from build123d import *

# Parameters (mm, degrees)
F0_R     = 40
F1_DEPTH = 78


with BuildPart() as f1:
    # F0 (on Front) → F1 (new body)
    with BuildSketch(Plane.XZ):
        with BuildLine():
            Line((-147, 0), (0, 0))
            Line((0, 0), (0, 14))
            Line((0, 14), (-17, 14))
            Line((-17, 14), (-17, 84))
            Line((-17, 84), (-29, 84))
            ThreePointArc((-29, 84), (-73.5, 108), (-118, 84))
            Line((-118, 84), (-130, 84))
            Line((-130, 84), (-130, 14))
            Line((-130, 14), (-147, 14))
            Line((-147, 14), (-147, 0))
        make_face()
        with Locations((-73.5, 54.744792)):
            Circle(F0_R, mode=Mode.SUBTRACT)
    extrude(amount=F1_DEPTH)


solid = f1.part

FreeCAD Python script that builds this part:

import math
import FreeCAD as App
import Part
import Sketcher

V = App.Vector

doc = App.newDocument("Part")
body = doc.addObject("PartDesign::Body", "Body")

sketch1 = doc.addObject("Sketcher::SketchObject", "Sketch")
body.addObject(sketch1)
sketch1.AttachmentSupport = (doc.XZ_Plane, [""])
sketch1.MapMode = "FlatFace"
sketch1.addGeometry([
    Part.LineSegment(V(-147, 0, 0), V(0, 0, 0)),
    Part.LineSegment(V(0, 0, 0), V(0, 14, 0)),
    Part.LineSegment(V(0, 14, 0), V(-17, 14, 0)),
    Part.LineSegment(V(-17, 14, 0), V(-17, 84, 0)),
    Part.LineSegment(V(-17, 84, 0), V(-29, 84, 0)),
    Part.ArcOfCircle(Part.Circle(V(-73.5, 54.744792, 0), V(0, 0, 1), 53.255208), math.radians(33.321736), math.radians(146.678264)),
    Part.LineSegment(V(-118, 84, 0), V(-130, 84, 0)),
    Part.LineSegment(V(-130, 84, 0), V(-130, 14, 0)),
    Part.LineSegment(V(-130, 14, 0), V(-147, 14, 0)),
    Part.LineSegment(V(-147, 14, 0), V(-147, 0, 0)),
    Part.Circle(V(-73.5, 54.744792, 0), V(0, 0, 1), 40),
], False)
sketch1.addConstraint([
    Sketcher.Constraint("Coincident", 0, 2, 1, 1),
    Sketcher.Constraint("Coincident", 1, 2, 2, 1),
    Sketcher.Constraint("Coincident", 2, 2, 3, 1),
    Sketcher.Constraint("Coincident", 3, 2, 4, 1),
    Sketcher.Constraint("Coincident", 4, 2, 5, 1),
    Sketcher.Constraint("Coincident", 5, 2, 6, 1),
    Sketcher.Constraint("Coincident", 6, 2, 7, 1),
    Sketcher.Constraint("Coincident", 7, 2, 8, 1),
    Sketcher.Constraint("Coincident", 8, 2, 9, 1),
    Sketcher.Constraint("Coincident", 9, 2, 0, 1),
    Sketcher.Constraint("Horizontal", 0),
    Sketcher.Constraint("Vertical", 1),
    Sketcher.Constraint("Horizontal", 2),
    Sketcher.Constraint("Vertical", 3),
    Sketcher.Constraint("Horizontal", 4),
    Sketcher.Constraint("Horizontal", 6),
    Sketcher.Constraint("Vertical", 7),
    Sketcher.Constraint("Horizontal", 8),
    Sketcher.Constraint("Vertical", 9),
    Sketcher.Constraint("Coincident", 0, 2, -1, 1),
    Sketcher.Constraint("Coincident", 10, 3, 5, 3),
    Sketcher.Constraint("Horizontal", 4, 2, 5, 2),
    Sketcher.Constraint("Horizontal", 2, 2, 7, 2),
    Sketcher.Constraint("Equal", 4, 6),
    Sketcher.Constraint("Equal", 2, 8),
    Sketcher.Constraint("Diameter", 10, 80.0),
    Sketcher.Constraint("DistanceX", 0, 1, 0, 2, 147.0),
    Sketcher.Constraint("DistanceX", 2, 2, 2, 1, 17.0),
    Sketcher.Constraint("DistanceX", 4, 2, 4, 1, 12.0),
    Sketcher.Constraint("DistanceY", 1, 1, 1, 2, 14.0),
    Sketcher.Constraint("DistanceY", 3, 1, 3, 2, 70.0),
    Sketcher.Constraint("Radius", 5, 53.255208),
])
pad1 = doc.addObject("PartDesign::Pad", "Pad")
body.addObject(pad1)
pad1.Profile = sketch1
pad1.Length = 78

doc.recompute()
